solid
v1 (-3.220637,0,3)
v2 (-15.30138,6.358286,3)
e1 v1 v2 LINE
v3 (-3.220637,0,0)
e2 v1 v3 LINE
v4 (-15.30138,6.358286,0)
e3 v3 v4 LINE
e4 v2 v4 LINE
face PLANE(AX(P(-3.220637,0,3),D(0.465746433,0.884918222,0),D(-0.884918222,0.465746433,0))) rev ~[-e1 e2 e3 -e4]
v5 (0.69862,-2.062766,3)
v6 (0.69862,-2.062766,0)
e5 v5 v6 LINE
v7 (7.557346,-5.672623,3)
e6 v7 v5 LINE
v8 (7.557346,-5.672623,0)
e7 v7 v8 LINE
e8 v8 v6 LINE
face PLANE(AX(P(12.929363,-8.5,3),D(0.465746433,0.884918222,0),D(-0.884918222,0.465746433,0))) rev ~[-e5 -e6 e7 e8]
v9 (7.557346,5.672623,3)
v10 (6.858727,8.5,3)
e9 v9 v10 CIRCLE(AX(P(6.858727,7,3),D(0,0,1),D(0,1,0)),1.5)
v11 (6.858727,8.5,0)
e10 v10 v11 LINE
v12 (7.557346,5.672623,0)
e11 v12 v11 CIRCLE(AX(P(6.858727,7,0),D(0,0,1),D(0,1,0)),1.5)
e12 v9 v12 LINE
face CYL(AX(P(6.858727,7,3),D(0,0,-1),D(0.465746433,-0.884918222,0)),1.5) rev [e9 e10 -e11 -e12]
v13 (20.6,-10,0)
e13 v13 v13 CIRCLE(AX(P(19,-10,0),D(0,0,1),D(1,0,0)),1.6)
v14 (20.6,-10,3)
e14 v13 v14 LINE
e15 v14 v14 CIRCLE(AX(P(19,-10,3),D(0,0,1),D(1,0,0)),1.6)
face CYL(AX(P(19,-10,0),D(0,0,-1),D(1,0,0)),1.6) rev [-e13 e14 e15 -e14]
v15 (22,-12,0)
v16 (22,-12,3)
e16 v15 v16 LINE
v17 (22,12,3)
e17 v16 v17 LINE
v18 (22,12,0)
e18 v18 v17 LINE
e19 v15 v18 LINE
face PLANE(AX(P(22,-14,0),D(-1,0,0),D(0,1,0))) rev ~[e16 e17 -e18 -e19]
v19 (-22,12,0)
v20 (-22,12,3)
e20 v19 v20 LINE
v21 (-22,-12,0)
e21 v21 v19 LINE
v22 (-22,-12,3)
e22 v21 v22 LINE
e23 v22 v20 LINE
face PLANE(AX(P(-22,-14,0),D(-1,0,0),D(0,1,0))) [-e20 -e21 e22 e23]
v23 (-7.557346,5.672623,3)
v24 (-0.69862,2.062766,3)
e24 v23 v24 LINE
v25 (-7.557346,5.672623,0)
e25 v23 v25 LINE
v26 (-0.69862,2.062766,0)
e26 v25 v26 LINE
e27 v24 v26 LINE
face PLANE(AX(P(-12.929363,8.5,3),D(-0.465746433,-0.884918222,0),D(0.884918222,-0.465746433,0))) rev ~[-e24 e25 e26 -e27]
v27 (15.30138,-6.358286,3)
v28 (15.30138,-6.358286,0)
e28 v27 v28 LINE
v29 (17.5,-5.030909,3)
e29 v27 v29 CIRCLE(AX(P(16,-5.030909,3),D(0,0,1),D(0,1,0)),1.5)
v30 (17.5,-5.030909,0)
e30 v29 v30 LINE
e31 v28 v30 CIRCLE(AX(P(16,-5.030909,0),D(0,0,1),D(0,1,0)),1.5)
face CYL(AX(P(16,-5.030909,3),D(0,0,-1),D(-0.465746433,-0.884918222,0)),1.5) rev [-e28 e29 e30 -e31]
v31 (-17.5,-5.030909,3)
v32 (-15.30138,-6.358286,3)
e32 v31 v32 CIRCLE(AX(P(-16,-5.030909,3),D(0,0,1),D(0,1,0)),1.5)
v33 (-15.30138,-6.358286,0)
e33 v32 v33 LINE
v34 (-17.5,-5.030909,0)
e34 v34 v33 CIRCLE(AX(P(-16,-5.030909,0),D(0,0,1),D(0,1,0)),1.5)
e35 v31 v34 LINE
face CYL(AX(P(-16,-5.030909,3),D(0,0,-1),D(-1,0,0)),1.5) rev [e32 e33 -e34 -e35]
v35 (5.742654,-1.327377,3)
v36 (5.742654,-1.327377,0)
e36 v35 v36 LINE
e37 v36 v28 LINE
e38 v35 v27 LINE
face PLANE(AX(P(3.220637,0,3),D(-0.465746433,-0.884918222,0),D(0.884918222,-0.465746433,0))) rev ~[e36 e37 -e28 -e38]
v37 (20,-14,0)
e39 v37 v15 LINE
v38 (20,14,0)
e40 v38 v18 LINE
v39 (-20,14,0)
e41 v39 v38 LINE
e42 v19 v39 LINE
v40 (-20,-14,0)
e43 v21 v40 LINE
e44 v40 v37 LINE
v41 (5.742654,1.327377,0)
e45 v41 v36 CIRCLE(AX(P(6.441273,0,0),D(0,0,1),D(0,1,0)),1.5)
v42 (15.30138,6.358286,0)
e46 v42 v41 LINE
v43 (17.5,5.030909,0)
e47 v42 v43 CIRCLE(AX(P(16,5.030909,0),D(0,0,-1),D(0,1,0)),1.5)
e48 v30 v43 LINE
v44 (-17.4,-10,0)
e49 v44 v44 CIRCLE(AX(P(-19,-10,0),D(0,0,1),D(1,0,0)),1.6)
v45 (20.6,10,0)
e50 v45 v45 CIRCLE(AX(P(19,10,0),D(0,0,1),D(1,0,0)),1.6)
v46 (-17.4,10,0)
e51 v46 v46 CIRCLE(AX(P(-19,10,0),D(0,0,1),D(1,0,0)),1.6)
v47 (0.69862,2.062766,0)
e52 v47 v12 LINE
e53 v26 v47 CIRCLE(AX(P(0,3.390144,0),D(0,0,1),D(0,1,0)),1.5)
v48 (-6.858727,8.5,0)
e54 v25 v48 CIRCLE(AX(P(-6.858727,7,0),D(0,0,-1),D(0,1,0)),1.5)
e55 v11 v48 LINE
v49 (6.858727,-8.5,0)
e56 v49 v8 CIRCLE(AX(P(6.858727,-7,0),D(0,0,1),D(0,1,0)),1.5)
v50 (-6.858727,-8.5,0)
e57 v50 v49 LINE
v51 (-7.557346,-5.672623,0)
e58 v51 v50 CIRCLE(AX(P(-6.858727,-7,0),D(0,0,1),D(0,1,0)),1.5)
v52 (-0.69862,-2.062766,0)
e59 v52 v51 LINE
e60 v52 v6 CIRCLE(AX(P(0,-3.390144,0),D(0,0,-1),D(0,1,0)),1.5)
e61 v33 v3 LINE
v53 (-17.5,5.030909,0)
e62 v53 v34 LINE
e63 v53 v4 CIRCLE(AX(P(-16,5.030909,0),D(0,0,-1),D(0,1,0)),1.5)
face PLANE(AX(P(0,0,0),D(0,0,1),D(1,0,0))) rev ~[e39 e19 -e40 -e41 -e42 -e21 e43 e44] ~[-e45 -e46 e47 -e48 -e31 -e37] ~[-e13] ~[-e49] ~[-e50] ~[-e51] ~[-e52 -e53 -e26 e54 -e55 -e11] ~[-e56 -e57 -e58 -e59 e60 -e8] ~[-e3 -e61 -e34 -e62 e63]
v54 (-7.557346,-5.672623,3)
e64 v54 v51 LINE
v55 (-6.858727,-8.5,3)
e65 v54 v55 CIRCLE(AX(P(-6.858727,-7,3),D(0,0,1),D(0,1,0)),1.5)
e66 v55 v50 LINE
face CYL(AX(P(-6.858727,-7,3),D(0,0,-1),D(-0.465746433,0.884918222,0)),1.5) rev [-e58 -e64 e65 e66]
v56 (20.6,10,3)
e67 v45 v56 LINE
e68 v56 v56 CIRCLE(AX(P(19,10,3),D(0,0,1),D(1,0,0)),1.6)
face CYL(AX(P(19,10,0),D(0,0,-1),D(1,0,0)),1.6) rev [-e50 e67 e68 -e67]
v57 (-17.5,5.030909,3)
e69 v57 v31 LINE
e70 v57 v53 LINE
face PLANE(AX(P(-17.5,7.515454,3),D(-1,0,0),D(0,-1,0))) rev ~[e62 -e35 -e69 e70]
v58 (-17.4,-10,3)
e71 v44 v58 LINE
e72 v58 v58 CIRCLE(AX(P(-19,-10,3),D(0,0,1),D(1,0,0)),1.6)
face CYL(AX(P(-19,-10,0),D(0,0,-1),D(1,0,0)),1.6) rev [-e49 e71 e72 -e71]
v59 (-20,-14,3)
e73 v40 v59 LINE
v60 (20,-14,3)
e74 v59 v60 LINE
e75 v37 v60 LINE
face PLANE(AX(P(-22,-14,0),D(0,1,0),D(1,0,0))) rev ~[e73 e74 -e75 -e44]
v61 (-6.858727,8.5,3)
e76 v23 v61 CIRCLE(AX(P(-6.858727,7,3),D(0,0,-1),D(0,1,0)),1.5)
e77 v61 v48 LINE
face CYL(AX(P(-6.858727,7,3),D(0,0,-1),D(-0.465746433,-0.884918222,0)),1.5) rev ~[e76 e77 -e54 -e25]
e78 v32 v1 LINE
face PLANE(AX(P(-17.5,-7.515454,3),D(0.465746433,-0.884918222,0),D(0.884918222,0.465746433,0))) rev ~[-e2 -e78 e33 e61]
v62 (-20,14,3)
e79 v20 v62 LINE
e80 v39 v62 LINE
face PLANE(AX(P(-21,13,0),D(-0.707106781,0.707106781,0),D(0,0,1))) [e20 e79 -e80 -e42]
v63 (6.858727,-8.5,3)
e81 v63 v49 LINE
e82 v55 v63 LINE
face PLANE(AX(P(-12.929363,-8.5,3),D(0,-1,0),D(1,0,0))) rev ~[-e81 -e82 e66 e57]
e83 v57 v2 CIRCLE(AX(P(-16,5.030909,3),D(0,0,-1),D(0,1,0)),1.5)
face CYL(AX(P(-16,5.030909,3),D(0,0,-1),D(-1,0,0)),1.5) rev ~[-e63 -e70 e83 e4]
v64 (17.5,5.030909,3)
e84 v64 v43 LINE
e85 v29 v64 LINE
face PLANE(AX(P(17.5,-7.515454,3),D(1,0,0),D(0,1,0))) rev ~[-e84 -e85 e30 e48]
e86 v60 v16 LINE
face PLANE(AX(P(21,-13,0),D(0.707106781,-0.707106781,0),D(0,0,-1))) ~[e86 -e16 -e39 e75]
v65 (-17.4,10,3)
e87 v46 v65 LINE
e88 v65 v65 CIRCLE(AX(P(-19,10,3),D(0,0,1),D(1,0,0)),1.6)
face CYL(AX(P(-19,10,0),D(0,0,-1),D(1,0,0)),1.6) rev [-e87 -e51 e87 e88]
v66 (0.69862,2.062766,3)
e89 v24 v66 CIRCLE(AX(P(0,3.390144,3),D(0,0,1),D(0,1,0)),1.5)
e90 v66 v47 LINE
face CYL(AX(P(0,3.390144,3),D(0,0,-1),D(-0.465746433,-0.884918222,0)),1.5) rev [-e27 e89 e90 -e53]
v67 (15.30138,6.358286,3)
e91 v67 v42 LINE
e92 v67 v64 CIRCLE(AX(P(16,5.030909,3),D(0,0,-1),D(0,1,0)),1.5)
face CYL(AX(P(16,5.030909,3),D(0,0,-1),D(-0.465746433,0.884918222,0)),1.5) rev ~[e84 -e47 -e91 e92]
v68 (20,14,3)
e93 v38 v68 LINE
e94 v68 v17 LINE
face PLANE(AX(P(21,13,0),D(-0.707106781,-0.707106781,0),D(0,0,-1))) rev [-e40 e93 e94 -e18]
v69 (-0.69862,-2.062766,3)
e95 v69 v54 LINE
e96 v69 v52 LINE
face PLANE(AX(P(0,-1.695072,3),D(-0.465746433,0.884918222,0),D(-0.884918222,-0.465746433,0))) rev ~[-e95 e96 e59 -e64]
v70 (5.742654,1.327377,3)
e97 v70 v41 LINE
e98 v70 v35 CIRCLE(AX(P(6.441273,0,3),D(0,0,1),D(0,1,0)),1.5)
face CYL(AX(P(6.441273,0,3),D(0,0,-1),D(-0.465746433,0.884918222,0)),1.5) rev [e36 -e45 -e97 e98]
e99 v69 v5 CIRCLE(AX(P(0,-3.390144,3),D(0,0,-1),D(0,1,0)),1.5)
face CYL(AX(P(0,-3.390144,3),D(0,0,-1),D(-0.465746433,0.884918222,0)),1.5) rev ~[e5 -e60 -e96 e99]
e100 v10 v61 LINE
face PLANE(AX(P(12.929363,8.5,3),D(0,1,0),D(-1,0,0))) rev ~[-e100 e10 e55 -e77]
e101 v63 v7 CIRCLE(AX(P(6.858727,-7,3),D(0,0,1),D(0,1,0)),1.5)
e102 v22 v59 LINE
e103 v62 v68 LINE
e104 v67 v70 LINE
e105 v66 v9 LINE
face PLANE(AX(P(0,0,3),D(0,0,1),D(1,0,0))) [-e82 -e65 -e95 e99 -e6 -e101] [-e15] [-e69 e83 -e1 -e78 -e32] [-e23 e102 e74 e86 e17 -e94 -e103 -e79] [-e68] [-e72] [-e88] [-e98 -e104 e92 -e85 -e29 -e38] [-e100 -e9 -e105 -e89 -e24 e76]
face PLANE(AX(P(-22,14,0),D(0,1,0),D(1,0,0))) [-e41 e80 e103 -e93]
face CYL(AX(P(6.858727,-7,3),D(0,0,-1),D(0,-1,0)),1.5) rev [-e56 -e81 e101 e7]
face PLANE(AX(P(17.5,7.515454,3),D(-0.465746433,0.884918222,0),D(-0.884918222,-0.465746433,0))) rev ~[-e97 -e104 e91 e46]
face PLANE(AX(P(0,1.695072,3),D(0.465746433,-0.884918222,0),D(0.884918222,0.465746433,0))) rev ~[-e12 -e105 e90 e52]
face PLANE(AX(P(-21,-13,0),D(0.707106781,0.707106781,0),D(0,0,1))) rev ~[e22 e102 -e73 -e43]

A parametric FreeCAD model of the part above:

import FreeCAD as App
import Part
import Sketcher

V = App.Vector


def edges_at(feature, points):
    """Names of the edges that pass closest to the given points."""
    edges = feature.Shape.Edges
    near = lambda p: min(range(len(edges)), key=lambda i: edges[i].distToShape(Part.Vertex(*p))[0])
    return sorted({f"Edge{near(p) + 1}" for p in points})


def add_polygon(sketch, points):
    """Adds a closed chain of lines whose ends are joined by coincident constraints."""
    first, n = sketch.GeometryCount, len(points)
    for a, b in zip(points, points[1:] + points[:1]):
        sketch.addGeometry(Part.LineSegment(App.Vector(*a, 0), App.Vector(*b, 0)), False)
    for i in range(n):
        sketch.addConstraint(Sketcher.Constraint("Coincident", first + i, 2, first + (i + 1) % n, 1))

doc = App.newDocument("Part")
body = doc.addObject("PartDesign::Body", "Body")

# Sketch on XY plane
sketch1 = doc.addObject("Sketcher::SketchObject", "Sketch")
body.addObject(sketch1)
sketch1.AttachmentSupport = (doc.XY_Plane, [""])
sketch1.MapMode = "FlatFace"
add_polygon(sketch1, [(-22, 14), (-22, -14), (22, -14), (22, 14)])  # lines 0-3
sketch1.addGeometry(Part.Circle(V(-19, -10, 0), V(0, 0, 1), 1.6), False)  # 4
sketch1.addGeometry(Part.Circle(V(19, -10, 0), V(0, 0, 1), 1.6), False)  # 5
sketch1.addGeometry(Part.Circle(V(-19, 10, 0), V(0, 0, 1), 1.6), False)  # 6
sketch1.addGeometry(Part.Circle(V(19, 10, 0), V(0, 0, 1), 1.6), False)  # 7
sketch1.addConstraint(Sketcher.Constraint("Vertical", 0))
sketch1.addConstraint(Sketcher.Constraint("Horizontal", 1))
sketch1.addConstraint(Sketcher.Constraint("Vertical", 2))
sketch1.addConstraint(Sketcher.Constraint("Horizontal", 3))
sketch1.addConstraint(Sketcher.Constraint("Equal", 4, 5))
sketch1.addConstraint(Sketcher.Constraint("Equal", 5, 6))
sketch1.addConstraint(Sketcher.Constraint("Equal", 6, 7))
sketch1.addConstraint(Sketcher.Constraint("Symmetric", 5, 3, 6, 3, -1, 1))
sketch1.addConstraint(Sketcher.Constraint("Symmetric", 4, 3, 7, 3, -1, 1))
sketch1.addConstraint(Sketcher.Constraint("Symmetric", 0, 2, 2, 2, -1, 1))
sketch1.addConstraint(Sketcher.Constraint("Symmetric", 4, 3, 5, 3, -2))
sketch1.addConstraint(Sketcher.Constraint("Diameter", 4, 3.2))
sketch1.addConstraint(Sketcher.Constraint("DistanceX", 1, 1, 1, 2, 44.0))
sketch1.addConstraint(Sketcher.Constraint("DistanceY", 0, 2, 0, 1, 28.0))
sketch1.addConstraint(Sketcher.Constraint("DistanceX", 4, 3, -1, 1, 19.0))
sketch1.addConstraint(Sketcher.Constraint("DistanceY", 4, 3, -1, 1, 10.0))
pad1 = doc.addObject("PartDesign::Pad", "Pad")
body.addObject(pad1)
pad1.Profile = sketch1
pad1.Length = 3

# Sketch on XY plane
sketch2 = doc.addObject("Sketcher::SketchObject", "Sketch001")
body.addObject(sketch2)
sketch2.AttachmentSupport = (doc.XY_Plane, [""])
sketch2.MapMode = "FlatFace"
sketch2.AttachmentOffset = App.Placement(V(0, 0, 3), App.Rotation())
add_polygon(sketch2, [(-17.5, 7.515454), (-17.5, -7.515454), (-3.220637, 0)])  # lines 0-2
add_polygon(sketch2, [(-12.929363, 8.5), (0, 1.695072), (12.929363, 8.5)])  # lines 3-5
add_polygon(sketch2, [(0, -1.695072), (-12.929363, -8.5), (12.929363, -8.5)])  # lines 6-8
add_polygon(sketch2, [(17.5, 7.515454), (3.220637, 0), (17.5, -7.515454)])  # lines 9-11
sketch2.addConstraint(Sketcher.Constraint("Vertical", 0))
sketch2.addConstraint(Sketcher.Constraint("Horizontal", 5))
sketch2.addConstraint(Sketcher.Constraint("Horizontal", 7))
sketch2.addConstraint(Sketcher.Constraint("Vertical", 11))
sketch2.addConstraint(Sketcher.Constraint("Symmetric", 4, 2, 6, 2, -1, 1))
sketch2.addConstraint(Sketcher.Constraint("Symmetric", 3, 2, 8, 2, -1, 1))
sketch2.addConstraint(Sketcher.Constraint("Symmetric", 1, 2, 9, 2, -1, 1))
sketch2.addConstraint(Sketcher.Constraint("Symmetric", 2, 2, 10, 2, -1, 1))
sketch2.addConstraint(Sketcher.Constraint("PointOnObject", 1, 2, -1))
sketch2.addConstraint(Sketcher.Constraint("PointOnObject", 3, 2, -2))
sketch2.addConstraint(Sketcher.Constraint("Parallel", 2, 3))
sketch2.addConstraint(Sketcher.Constraint("Parallel", 1, 4))
sketch2.addConstraint(Sketcher.Constraint("Parallel", 3, 8))
sketch2.addConstraint(Sketcher.Constraint("Parallel", 6, 9))
sketch2.addConstraint(Sketcher.Constraint("Horizontal", 0, 2, 10, 2))
sketch2.addConstraint(Sketcher.Constraint("DistanceY", 6, 2, 5, 2, 17.0))
sketch2.addConstraint(Sketcher.Constraint("DistanceX", 0, 2, -1, 1, 17.5))
sketch2.addConstraint(Sketcher.Constraint("DistanceX", 1, 2, 4, 2, 16.15))
sketch2.addConstraint(Sketcher.Constraint("Distance", 3, 14.6108))
sketch2.addConstraint(Sketcher.Constraint("DistanceY", 0, 2, 0, 1, 15.030909))
pocket1 = doc.addObject("PartDesign::Pocket", "Pocket")
body.addObject(pocket1)
pocket1.Profile = sketch2
pocket1.Length = 3
doc.recompute()

fillet = doc.addObject("PartDesign::Fillet", "Fillet")
body.addObject(fillet)
fillet.Base = (pocket1, edges_at(pocket1, [
    (0, 1.695, 1.5),
    (-12.929, 8.5, 1.5),
    (12.929, 8.5, 1.5),
    (-12.929, -8.5, 1.5),
    (0, -1.695, 1.5),
    (12.929, -8.5, 1.5),
    (3.221, 0, 1.5),
    (17.5, 7.515, 1.5),
    (17.5, -7.515, 1.5),
    (-17.5, 7.515, 1.5),
    (-17.5, -7.515, 1.5),
]))
fillet.Radius = 1.5
doc.recompute()

chamfer = doc.addObject("PartDesign::Chamfer", "Chamfer")
body.addObject(chamfer)
chamfer.Base = (fillet, edges_at(fillet, [
    (22, -14, 1.5),
    (-22, -14, 1.5),
    (-22, 14, 1.5),
    (22, 14, 1.5),
]))
chamfer.Size = 2

doc.recompute()
